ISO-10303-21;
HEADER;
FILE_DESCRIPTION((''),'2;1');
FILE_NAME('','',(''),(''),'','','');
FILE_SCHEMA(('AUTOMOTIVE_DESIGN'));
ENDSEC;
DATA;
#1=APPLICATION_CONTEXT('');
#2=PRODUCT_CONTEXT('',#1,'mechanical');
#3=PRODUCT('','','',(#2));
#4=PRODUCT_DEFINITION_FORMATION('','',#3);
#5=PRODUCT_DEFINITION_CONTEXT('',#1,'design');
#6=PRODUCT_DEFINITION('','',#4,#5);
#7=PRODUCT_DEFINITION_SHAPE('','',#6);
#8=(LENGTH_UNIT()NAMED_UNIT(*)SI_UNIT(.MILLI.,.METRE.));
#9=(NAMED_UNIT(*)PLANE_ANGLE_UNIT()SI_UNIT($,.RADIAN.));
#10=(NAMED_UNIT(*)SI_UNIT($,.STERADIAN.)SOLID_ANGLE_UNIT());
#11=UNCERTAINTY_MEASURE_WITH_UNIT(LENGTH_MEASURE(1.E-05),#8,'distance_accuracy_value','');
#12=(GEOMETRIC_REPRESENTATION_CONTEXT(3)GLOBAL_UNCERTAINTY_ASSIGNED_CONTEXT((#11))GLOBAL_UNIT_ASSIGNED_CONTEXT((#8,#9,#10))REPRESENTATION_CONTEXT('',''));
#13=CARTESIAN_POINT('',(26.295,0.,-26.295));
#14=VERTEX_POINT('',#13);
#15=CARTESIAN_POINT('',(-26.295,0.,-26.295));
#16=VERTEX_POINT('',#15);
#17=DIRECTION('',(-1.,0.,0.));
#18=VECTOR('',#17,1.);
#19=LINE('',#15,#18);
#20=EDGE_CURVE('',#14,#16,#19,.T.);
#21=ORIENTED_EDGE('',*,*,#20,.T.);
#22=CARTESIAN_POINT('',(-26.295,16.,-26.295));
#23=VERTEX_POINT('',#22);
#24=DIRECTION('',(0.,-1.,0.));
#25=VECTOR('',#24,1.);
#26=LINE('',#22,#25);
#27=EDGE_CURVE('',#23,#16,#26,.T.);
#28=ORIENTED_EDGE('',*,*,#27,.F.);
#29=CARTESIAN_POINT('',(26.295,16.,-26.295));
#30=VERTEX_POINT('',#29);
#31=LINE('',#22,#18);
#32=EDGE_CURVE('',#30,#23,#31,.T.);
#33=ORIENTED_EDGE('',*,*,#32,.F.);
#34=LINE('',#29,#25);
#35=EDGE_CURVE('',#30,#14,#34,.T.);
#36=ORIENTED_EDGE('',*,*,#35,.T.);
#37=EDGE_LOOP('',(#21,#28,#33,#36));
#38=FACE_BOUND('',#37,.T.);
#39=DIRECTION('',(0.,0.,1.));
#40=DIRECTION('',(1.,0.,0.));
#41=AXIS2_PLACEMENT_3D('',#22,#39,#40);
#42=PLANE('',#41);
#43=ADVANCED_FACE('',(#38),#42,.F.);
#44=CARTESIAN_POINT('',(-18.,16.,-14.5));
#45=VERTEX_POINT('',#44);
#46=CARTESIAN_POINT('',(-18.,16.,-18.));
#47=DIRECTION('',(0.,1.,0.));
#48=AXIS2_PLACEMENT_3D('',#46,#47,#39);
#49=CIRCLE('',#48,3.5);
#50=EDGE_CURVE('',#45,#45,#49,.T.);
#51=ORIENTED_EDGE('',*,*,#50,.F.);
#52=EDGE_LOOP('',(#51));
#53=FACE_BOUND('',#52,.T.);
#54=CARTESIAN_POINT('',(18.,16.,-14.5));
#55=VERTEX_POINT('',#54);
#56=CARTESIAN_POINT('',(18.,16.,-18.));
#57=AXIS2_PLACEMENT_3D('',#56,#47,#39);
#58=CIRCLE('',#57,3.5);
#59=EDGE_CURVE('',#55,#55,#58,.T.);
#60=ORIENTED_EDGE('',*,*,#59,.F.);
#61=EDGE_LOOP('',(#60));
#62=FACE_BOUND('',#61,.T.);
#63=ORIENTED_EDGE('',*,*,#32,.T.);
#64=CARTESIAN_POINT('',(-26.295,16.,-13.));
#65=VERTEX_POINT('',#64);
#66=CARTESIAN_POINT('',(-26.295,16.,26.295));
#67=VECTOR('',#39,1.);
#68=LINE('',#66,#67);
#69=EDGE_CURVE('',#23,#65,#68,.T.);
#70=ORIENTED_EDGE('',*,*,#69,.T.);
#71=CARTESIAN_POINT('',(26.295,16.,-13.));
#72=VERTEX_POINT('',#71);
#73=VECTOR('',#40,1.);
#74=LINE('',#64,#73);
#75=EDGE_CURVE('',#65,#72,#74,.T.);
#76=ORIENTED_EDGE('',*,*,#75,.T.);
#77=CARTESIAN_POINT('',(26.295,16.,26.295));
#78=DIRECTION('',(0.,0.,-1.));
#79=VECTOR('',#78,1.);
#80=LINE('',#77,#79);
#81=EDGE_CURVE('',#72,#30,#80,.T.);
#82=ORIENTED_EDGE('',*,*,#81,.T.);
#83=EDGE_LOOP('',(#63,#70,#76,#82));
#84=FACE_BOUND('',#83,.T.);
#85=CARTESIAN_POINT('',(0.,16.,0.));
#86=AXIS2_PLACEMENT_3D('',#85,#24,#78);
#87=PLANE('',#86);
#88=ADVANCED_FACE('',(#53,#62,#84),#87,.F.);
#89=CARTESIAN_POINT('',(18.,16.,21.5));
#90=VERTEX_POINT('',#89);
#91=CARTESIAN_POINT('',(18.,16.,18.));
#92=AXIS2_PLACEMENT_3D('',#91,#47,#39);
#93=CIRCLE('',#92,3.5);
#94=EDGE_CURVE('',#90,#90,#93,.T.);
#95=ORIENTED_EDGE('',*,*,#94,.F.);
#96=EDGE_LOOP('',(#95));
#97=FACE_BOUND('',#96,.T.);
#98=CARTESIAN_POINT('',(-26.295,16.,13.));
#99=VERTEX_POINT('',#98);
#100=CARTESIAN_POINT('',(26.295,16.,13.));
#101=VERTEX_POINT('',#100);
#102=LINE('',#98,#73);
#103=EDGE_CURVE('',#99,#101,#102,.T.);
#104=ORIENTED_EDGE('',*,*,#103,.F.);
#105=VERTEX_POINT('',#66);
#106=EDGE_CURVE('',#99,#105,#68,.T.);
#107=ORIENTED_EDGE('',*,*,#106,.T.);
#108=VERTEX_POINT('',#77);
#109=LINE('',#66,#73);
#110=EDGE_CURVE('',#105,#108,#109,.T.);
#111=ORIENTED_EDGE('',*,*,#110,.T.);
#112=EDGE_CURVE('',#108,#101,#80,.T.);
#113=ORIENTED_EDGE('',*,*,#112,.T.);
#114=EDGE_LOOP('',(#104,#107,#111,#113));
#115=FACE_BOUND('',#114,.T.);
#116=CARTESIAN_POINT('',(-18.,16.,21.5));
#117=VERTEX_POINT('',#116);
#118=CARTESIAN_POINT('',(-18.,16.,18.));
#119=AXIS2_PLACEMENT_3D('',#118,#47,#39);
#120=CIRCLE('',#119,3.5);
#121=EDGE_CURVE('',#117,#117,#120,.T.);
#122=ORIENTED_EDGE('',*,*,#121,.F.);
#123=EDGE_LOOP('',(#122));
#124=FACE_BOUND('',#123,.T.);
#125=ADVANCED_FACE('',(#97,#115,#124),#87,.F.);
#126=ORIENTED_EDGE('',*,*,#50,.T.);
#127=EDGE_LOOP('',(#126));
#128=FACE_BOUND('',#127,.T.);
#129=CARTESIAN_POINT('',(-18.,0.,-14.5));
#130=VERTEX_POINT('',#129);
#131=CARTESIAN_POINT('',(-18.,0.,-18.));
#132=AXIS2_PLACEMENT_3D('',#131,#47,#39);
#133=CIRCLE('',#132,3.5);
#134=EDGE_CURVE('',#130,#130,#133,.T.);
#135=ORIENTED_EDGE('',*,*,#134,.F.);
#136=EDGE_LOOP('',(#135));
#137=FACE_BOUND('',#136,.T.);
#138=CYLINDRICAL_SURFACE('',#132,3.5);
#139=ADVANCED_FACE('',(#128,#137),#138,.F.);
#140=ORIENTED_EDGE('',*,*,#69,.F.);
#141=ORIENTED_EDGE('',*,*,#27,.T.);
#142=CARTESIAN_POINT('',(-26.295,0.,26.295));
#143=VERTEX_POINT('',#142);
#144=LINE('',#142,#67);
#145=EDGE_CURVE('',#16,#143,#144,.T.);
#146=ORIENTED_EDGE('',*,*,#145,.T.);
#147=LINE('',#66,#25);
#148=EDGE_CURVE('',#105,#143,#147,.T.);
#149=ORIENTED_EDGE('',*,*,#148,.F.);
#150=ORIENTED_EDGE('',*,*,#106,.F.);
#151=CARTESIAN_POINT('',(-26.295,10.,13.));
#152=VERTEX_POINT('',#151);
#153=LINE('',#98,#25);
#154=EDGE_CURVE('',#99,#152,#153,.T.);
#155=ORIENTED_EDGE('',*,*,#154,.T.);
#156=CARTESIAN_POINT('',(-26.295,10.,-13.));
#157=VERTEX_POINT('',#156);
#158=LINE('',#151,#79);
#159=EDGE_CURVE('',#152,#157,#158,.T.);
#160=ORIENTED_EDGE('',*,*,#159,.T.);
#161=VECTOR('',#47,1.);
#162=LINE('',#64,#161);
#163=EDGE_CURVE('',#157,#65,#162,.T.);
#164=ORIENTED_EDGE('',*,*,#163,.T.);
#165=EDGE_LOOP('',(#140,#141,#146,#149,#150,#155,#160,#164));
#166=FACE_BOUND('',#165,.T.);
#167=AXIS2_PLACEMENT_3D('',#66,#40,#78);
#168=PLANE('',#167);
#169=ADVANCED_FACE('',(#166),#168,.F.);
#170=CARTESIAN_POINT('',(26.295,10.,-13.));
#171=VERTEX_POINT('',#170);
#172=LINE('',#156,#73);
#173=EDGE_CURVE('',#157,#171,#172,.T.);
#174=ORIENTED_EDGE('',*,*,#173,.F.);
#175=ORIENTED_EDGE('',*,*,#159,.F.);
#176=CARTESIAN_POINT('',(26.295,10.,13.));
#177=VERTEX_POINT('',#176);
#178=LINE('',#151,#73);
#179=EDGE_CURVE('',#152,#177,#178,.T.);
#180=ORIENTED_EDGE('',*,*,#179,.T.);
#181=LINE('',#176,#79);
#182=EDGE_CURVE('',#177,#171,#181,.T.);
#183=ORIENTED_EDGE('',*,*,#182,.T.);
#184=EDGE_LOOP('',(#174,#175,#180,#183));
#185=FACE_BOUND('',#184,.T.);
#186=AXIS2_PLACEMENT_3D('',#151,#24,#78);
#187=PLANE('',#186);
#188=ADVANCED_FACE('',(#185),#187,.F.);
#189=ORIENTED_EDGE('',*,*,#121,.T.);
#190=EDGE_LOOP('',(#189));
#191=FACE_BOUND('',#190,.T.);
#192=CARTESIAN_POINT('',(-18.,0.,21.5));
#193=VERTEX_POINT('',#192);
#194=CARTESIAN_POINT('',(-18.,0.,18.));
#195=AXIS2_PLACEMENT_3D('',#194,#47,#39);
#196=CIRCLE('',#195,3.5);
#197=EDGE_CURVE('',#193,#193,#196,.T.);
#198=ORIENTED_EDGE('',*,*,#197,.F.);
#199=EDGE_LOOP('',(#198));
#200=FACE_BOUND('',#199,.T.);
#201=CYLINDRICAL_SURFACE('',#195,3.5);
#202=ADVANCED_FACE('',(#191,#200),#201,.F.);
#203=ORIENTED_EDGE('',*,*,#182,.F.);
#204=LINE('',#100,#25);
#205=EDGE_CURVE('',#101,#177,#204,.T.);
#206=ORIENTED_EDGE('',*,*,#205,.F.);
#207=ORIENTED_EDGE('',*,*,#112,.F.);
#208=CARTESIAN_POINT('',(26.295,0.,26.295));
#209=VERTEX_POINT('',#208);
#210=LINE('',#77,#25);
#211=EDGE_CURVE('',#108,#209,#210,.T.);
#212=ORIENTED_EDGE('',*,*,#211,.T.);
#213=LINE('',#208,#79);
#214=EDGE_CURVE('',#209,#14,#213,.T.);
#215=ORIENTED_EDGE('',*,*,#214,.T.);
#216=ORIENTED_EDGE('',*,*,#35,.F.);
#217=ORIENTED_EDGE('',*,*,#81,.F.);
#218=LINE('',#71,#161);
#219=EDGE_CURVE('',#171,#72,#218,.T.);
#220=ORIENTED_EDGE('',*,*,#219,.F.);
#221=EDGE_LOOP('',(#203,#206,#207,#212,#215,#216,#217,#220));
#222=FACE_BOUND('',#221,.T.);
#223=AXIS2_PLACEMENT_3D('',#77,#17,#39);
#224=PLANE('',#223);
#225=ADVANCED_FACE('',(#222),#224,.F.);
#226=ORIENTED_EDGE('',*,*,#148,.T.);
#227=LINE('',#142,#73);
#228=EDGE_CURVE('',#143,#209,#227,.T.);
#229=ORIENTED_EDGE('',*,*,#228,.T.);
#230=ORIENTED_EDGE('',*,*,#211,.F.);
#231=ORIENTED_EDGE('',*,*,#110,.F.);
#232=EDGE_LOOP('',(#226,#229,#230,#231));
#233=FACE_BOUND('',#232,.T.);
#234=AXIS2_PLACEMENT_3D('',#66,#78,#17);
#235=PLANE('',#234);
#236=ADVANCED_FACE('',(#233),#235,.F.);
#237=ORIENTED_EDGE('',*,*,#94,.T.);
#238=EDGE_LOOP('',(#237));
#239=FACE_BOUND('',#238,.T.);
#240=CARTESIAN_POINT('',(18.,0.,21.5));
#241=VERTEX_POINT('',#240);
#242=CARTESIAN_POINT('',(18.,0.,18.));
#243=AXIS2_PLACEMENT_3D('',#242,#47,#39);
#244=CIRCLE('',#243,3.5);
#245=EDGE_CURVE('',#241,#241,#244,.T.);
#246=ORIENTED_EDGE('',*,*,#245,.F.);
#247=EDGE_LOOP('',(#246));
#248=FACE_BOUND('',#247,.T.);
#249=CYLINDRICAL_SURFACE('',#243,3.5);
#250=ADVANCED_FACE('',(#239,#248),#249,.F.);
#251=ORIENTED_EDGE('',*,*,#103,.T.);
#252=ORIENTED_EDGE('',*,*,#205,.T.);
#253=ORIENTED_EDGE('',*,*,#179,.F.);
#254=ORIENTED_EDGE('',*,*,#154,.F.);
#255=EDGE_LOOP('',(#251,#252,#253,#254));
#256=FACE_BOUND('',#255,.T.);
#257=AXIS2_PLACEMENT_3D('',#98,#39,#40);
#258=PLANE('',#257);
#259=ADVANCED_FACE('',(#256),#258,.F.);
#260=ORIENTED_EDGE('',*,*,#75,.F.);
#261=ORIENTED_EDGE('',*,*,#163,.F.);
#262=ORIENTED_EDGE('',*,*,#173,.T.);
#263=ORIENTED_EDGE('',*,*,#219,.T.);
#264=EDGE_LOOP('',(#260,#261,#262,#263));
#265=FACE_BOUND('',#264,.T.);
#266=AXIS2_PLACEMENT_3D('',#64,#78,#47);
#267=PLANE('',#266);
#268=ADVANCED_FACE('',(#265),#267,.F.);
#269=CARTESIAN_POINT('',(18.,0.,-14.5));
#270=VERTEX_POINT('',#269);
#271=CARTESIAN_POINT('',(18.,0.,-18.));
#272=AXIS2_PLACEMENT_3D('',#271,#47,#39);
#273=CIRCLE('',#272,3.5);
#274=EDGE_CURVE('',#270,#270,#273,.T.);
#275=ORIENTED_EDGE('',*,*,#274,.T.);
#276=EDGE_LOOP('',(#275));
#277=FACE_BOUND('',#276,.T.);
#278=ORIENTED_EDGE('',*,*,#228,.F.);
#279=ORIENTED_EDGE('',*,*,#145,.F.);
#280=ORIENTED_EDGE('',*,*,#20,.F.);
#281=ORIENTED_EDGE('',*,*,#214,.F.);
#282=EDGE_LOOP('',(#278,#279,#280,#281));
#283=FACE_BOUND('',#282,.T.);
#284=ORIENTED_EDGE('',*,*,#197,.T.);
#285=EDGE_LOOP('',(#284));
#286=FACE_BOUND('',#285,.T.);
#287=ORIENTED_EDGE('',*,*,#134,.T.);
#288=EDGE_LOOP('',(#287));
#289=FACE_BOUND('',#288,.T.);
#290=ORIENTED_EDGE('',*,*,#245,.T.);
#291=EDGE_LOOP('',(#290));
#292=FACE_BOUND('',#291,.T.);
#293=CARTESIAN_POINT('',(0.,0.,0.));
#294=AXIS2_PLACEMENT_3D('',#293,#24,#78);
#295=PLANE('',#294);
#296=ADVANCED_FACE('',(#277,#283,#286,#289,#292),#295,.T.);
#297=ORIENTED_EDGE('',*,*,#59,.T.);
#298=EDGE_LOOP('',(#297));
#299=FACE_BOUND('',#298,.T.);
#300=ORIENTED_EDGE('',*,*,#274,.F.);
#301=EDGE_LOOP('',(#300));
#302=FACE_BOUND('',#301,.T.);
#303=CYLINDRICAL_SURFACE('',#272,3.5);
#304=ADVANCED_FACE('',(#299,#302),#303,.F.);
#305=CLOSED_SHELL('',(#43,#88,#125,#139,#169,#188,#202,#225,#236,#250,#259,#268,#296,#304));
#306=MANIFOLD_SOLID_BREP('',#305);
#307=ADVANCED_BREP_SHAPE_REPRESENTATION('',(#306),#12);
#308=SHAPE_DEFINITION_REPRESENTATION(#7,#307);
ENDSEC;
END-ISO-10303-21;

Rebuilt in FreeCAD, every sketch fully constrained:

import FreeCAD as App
import Part
import Sketcher
from FreeCAD import Vector
Q = App.Units.Quantity

doc = App.newDocument("Part")
body = doc.addObject("PartDesign::Body", "Body")

sketch1 = body.newObject("Sketcher::SketchObject", "Sketch")
sketch1.AttachmentSupport = (doc.getObject("XZ_Plane"), [""])
sketch1.MapMode = "FlatFace"
sketch1.addGeometry(Part.LineSegment(Vector(-26, -26, 0), Vector(-26, 26, 0)), False)
sketch1.addGeometry(Part.LineSegment(Vector(-26, 26, 0), Vector(26, 26, 0)), False)
sketch1.addGeometry(Part.LineSegment(Vector(26, 26, 0), Vector(26, -26, 0)), False)
sketch1.addGeometry(Part.LineSegment(Vector(26, -26, 0), Vector(-26, -26, 0)), False)
sketch1.addConstraint(Sketcher.Constraint("Coincident", 0, 2, 1, 1))
sketch1.addConstraint(Sketcher.Constraint("Coincident", 1, 2, 2, 1))
sketch1.addConstraint(Sketcher.Constraint("Coincident", 2, 2, 3, 1))
sketch1.addConstraint(Sketcher.Constraint("Coincident", 3, 2, 0, 1))
sketch1.addConstraint(Sketcher.Constraint("Vertical", 0))
sketch1.addConstraint(Sketcher.Constraint("Horizontal", 1))
sketch1.addConstraint(Sketcher.Constraint("Vertical", 2))
sketch1.addConstraint(Sketcher.Constraint("Horizontal", 3))
sketch1.addConstraint(Sketcher.Constraint("Symmetric", 0, 2, 2, 2, -1, 1))
sketch1.addConstraint(Sketcher.Constraint("Equal", 3, 0))
sketch1.addConstraint(Sketcher.Constraint("DistanceX", 1, 1, 1, 2, Q("52.59 mm")))
pad1 = body.newObject("PartDesign::Pad", "Pad")
pad1.Profile = sketch1
pad1.Length = 16
pad1.Reversed = True

sketch2 = body.newObject("Sketcher::SketchObject", "Sketch001")
sketch2.AttachmentSupport = (doc.getObject("YZ_Plane"), [""])
sketch2.MapMode = "FlatFace"
sketch2.AttachmentOffset = App.Placement(Vector(0, 0, 26.295), App.Rotation())
sketch2.addGeometry(Part.LineSegment(Vector(16, 13, 0), Vector(10, 13, 0)), False)
sketch2.addGeometry(Part.LineSegment(Vector(10, 13, 0), Vector(10, -13, 0)), False)
sketch2.addGeometry(Part.LineSegment(Vector(10, -13, 0), Vector(16, -13, 0)), False)
sketch2.addGeometry(Part.LineSegment(Vector(16, -13, 0), Vector(16, 13, 0)), False)
sketch2.addConstraint(Sketcher.Constraint("Coincident", 0, 2, 1, 1))
sketch2.addConstraint(Sketcher.Constraint("Coincident", 1, 2, 2, 1))
sketch2.addConstraint(Sketcher.Constraint("Coincident", 2, 2, 3, 1))
sketch2.addConstraint(Sketcher.Constraint("Coincident", 3, 2, 0, 1))
sketch2.addConstraint(Sketcher.Constraint("Horizontal", 0))
sketch2.addConstraint(Sketcher.Constraint("Vertical", 1))
sketch2.addConstraint(Sketcher.Constraint("Horizontal", 2))
sketch2.addConstraint(Sketcher.Constraint("Vertical", 3))
sketch2.addConstraint(Sketcher.Constraint("DistanceX", 0, 2, 0, 1, Q("6 mm")))
sketch2.addConstraint(Sketcher.Constraint("DistanceY", 1, 2, 1, 1, Q("26 mm")))
sketch2.addConstraint(Sketcher.Constraint("DistanceX", -1, 1, 0, 2, Q("10 mm")))
sketch2.addConstraint(Sketcher.Constraint("DistanceY", -1, 1, 0, 2, Q("13 mm")))
pocket1 = body.newObject("PartDesign::Pocket", "Pocket")
pocket1.Profile = sketch2
pocket1.Type = "ThroughAll"

sketch3 = body.newObject("Sketcher::SketchObject", "Sketch002")
sketch3.AttachmentSupport = (doc.getObject("XZ_Plane"), [""])
sketch3.MapMode = "FlatFace"
sketch3.AttachmentOffset = App.Placement(Vector(0, 0, -16), App.Rotation())
sketch3.addGeometry(Part.Circle(Vector(-18, -18, 0), Vector(0, 0, 1), 3.5), False)
sketch3.addGeometry(Part.Circle(Vector(18, -18, 0), Vector(0, 0, 1), 3.5), False)
sketch3.addGeometry(Part.Circle(Vector(18, 18, 0), Vector(0, 0, 1), 3.5), False)
sketch3.addGeometry(Part.Circle(Vector(-18, 18, 0), Vector(0, 0, 1), 3.5), False)
sketch3.addConstraint(Sketcher.Constraint("Equal", 0, 1))
sketch3.addConstraint(Sketcher.Constraint("Equal", 1, 2))
sketch3.addConstraint(Sketcher.Constraint("Equal", 2, 3))
sketch3.addConstraint(Sketcher.Constraint("Symmetric", 0, 3, 2, 3, -1, 1))
sketch3.addConstraint(Sketcher.Constraint("Symmetric", 1, 3, 3, 3, -1, 1))
sketch3.addConstraint(Sketcher.Constraint("Symmetric", 0, 3, 1, 3, -2))
sketch3.addConstraint(Sketcher.Constraint("Diameter", 0, Q("7 mm")))
sketch3.addConstraint(Sketcher.Constraint("DistanceX", 0, 3, -1, 1, Q("18 mm")))
sketch3.addConstraint(Sketcher.Constraint("DistanceY", 0, 3, -1, 1, Q("18 mm")))
pocket2 = body.newObject("PartDesign::Pocket", "Pocket001")
pocket2.Profile = sketch3
pocket2.Type = "ThroughAll"
pocket2.Reversed = True

doc.recompute()
